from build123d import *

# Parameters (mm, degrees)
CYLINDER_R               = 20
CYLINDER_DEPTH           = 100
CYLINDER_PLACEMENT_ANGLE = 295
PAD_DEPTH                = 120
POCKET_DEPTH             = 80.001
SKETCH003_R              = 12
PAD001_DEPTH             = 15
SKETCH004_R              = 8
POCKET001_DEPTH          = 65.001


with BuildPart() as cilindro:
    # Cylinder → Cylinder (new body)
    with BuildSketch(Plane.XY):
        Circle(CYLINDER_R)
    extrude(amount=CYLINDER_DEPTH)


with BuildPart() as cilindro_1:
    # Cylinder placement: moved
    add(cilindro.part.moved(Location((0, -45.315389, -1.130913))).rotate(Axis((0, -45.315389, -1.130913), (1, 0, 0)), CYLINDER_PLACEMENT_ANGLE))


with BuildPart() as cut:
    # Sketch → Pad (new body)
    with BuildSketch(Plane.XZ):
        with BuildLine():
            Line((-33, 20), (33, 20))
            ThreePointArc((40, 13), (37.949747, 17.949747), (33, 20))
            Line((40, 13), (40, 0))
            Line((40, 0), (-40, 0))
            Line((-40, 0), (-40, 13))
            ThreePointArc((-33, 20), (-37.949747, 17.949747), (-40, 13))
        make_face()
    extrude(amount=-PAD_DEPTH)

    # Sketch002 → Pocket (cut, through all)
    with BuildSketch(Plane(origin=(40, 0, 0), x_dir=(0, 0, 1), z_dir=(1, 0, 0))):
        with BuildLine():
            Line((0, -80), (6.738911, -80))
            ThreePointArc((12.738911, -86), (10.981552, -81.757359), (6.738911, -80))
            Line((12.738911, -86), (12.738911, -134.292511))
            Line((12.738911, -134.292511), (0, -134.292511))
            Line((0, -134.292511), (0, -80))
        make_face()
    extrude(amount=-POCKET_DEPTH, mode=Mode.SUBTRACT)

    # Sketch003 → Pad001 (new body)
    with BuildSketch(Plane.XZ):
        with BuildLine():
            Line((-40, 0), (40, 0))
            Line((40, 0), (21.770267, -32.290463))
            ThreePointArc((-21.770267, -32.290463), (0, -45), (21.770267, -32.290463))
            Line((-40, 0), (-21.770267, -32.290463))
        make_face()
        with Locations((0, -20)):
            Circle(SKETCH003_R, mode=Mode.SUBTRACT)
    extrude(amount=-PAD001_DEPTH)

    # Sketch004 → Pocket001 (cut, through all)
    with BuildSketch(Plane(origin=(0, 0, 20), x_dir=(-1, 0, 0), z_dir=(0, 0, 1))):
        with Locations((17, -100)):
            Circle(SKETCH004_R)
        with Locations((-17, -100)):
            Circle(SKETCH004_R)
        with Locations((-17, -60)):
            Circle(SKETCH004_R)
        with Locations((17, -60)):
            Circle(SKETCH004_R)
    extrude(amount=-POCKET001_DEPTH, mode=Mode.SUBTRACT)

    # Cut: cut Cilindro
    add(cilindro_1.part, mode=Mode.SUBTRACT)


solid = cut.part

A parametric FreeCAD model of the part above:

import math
import FreeCAD as App
import Part
import Sketcher

V = App.Vector
Q = App.Units.Quantity

doc = App.newDocument("Part")
params = doc.addObject("Spreadsheet::Sheet", "Params")
for row, (alias, value) in enumerate([
    ("sketch1_diameter", "40 mm"),
    ("pad1_length", "100 mm"),
    ("sketch2_radius", "7.000002 mm"),
    ("sketch2_width", "66 mm"),
    ("sketch2_height", "13 mm"),
    ("pad2_length", "120 mm"),
    ("sketch3_radius", "5.999999 mm"),
    ("sketch4_diameter", "24 mm"),
    ("sketch4_radius", "25 mm"),
    ("sketch4_width", "80 mm"),
    ("pad3_length", "15 mm"),
    ("sketch5_diameter", "16 mm"),
], start=1):
    params.set(f"A{row}", alias)
    params.set(f"B{row}", "=" + value)
    params.setAlias(f"B{row}", alias)

body = doc.addObject("PartDesign::Body", "Body")

# Sketch on XY plane
sketch1 = doc.addObject("Sketcher::SketchObject", "Sketch")
body.addObject(sketch1)
sketch1.AttachmentSupport = (doc.XY_Plane, [""])
sketch1.MapMode = "FlatFace"
sketch1.addGeometry(Part.Circle(V(0, 0, 0), V(0, 0, 1), 20), False)
sketch1.addConstraint(Sketcher.Constraint("Coincident", 0, 3, -1, 1))
sketch1.addConstraint(Sketcher.Constraint("Diameter", 0, Q("40 mm")))
sketch1.setExpression("Constraints[1]", "Params.sketch1_diameter")
pad1 = doc.addObject("PartDesign::Pad", "Pad")
body.addObject(pad1)
pad1.Profile = sketch1
pad1.setExpression("Length", "Params.pad1_length")
body2 = doc.addObject("PartDesign::Body", "Body001")
doc.recompute()

body.Placement = App.Placement(V(0, -45.315389, -1.130913), App.Rotation(V(1, 0, 0), 295))
boolean = doc.addObject("PartDesign::Boolean", "Boolean")
body2.addObject(boolean)
boolean.Type = "Fuse"
boolean.addObjects([body])
body3 = doc.addObject("PartDesign::Body", "Body002")

# Sketch on XZ plane
sketch2 = doc.addObject("Sketcher::SketchObject", "Sketch001")
body3.addObject(sketch2)
sketch2.AttachmentSupport = (doc.getObject("XZ_Plane002"), [""])
sketch2.MapMode = "FlatFace"
sketch2.addGeometry(Part.LineSegment(V(33, 20, 0), V(-33, 20, 0)), False)
sketch2.addGeometry(Part.ArcOfCircle(Part.Circle(V(-33, 13, 0), V(0, 0, 1), 7), math.radians(90), math.radians(180)), False)
sketch2.addGeometry(Part.LineSegment(V(-40, 13, 0), V(-40, 0, 0)), False)
sketch2.addGeometry(Part.LineSegment(V(-40, 0, 0), V(40, 0, 0)), False)
sketch2.addGeometry(Part.LineSegment(V(40, 0, 0), V(40, 13, 0)), False)
sketch2.addGeometry(Part.ArcOfCircle(Part.Circle(V(33, 13, 0), V(0, 0, 1), 7), math.radians(0), math.radians(90)), False)
sketch2.addConstraint(Sketcher.Constraint("Tangent", 0, 2, 1, 1))
sketch2.addConstraint(Sketcher.Constraint("Tangent", 1, 2, 2, 1))
sketch2.addConstraint(Sketcher.Constraint("Coincident", 2, 2, 3, 1))
sketch2.addConstraint(Sketcher.Constraint("Coincident", 3, 2, 4, 1))
sketch2.addConstraint(Sketcher.Constraint("Tangent", 4, 2, 5, 1))
sketch2.addConstraint(Sketcher.Constraint("Tangent", 5, 2, 0, 1))
sketch2.addConstraint(Sketcher.Constraint("Horizontal", 0))
sketch2.addConstraint(Sketcher.Constraint("Vertical", 2))
sketch2.addConstraint(Sketcher.Constraint("Horizontal", 3))
sketch2.addConstraint(Sketcher.Constraint("Vertical", 4))
sketch2.addConstraint(Sketcher.Constraint("Equal", 1, 5))
sketch2.addConstraint(Sketcher.Constraint("Symmetric", 2, 2, 3, 2, -1, 1))
sketch2.addConstraint(Sketcher.Constraint("Radius", 1, Q("7.000002 mm")))
sketch2.addConstraint(Sketcher.Constraint("DistanceX", 0, 2, 0, 1, Q("66 mm")))
sketch2.addConstraint(Sketcher.Constraint("DistanceY", 2, 2, 2, 1, Q("13 mm")))
sketch2.setExpression("Constraints[12]", "Params.sketch2_radius")
sketch2.setExpression("Constraints[13]", "Params.sketch2_width")
sketch2.setExpression("Constraints[14]", "Params.sketch2_height")
pad2 = doc.addObject("PartDesign::Pad", "Pad001")
body3.addObject(pad2)
pad2.Profile = sketch2
pad2.setExpression("Length", "Params.pad2_length")
pad2.Reversed = True

# Sketch on YZ plane
sketch3 = doc.addObject("Sketcher::SketchObject", "Sketch002")
body3.addObject(sketch3)
sketch3.AttachmentSupport = (doc.getObject("YZ_Plane002"), [""])
sketch3.MapMode = "FlatFace"
sketch3.AttachmentOffset = App.Placement(V(0, 0, 40), App.Rotation())
sketch3.addGeometry(Part.LineSegment(V(80, 7, 0), V(80, 0, 0)), False)
sketch3.addGeometry(Part.LineSegment(V(80, 0, 0), V(134, 0, 0)), False)
sketch3.addGeometry(Part.LineSegment(V(134, 0, 0), V(134, 13, 0)), False)
sketch3.addGeometry(Part.LineSegment(V(134, 13, 0), V(86, 13, 0)), False)
sketch3.addGeometry(Part.ArcOfCircle(Part.Circle(V(86, 7, 0), V(0, 0, 1), 6), math.radians(90), math.radians(180)), False)
sketch3.addConstraint(Sketcher.Constraint("Coincident", 0, 2, 1, 1))
sketch3.addConstraint(Sketcher.Constraint("Coincident", 1, 2, 2, 1))
sketch3.addConstraint(Sketcher.Constraint("Coincident", 2, 2, 3, 1))
sketch3.addConstraint(Sketcher.Constraint("Tangent", 3, 2, 4, 1))
sketch3.addConstraint(Sketcher.Constraint("Tangent", 4, 2, 0, 1))
sketch3.addConstraint(Sketcher.Constraint("Vertical", 0))
sketch3.addConstraint(Sketcher.Constraint("Horizontal", 1))
sketch3.addConstraint(Sketcher.Constraint("Vertical", 2))
sketch3.addConstraint(Sketcher.Constraint("Horizontal", 3))
sketch3.addConstraint(Sketcher.Constraint("PointOnObject", 0, 2, -1))
sketch3.addConstraint(Sketcher.Constraint("Radius", 4, Q("5.999999 mm")))
sketch3.addConstraint(Sketcher.Constraint("DistanceX", -1, 1, 4, 3, Q("85.999999 mm")))
sketch3.addConstraint(Sketcher.Constraint("DistanceX", 1, 1, 1, 2, Q("54.292511 mm")))
sketch3.addConstraint(Sketcher.Constraint("DistanceY", 0, 2, 0, 1, Q("6.738911 mm")))
sketch3.setExpression("Constraints[10]", "Params.sketch3_radius")
pocket1 = doc.addObject("PartDesign::Pocket", "Pocket")
body3.addObject(pocket1)
pocket1.Profile = sketch3
pocket1.Type = "ThroughAll"

# Sketch on XZ plane
sketch4 = doc.addObject("Sketcher::SketchObject", "Sketch003")
body3.addObject(sketch4)
sketch4.AttachmentSupport = (doc.getObject("XZ_Plane002"), [""])
sketch4.MapMode = "FlatFace"
sketch4.addGeometry(Part.LineSegment(V(40, 0, 0), V(-40, 0, 0)), False)
sketch4.addGeometry(Part.LineSegment(V(-40, 0, 0), V(-21.770267, -32.290463, 0)), False)
sketch4.addGeometry(Part.ArcOfCircle(Part.Circle(V(0, -20, 0), V(0, 0, 1), 25), math.radians(-150.552982), math.radians(-29.447018)), False)
sketch4.addGeometry(Part.LineSegment(V(21.770267, -32.290463, 0), V(40, 0, 0)), False)
sketch4.addGeometry(Part.Circle(V(0, -20, 0), V(0, 0, 1), 12), False)
sketch4.addConstraint(Sketcher.Constraint("Coincident", 0, 2, 1, 1))
sketch4.addConstraint(Sketcher.Constraint("Coincident", 1, 2, 2, 1))
sketch4.addConstraint(Sketcher.Constraint("Coincident", 2, 2, 3, 1))
sketch4.addConstraint(Sketcher.Constraint("Coincident", 3, 2, 0, 1))
sketch4.addConstraint(Sketcher.Constraint("Horizontal", 0))
sketch4.addConstraint(Sketcher.Constraint("Coincident", 4, 3, 2, 3))
sketch4.addConstraint(Sketcher.Constraint("PointOnObject", 2, 3, -2))
sketch4.addConstraint(Sketcher.Constraint("PointOnObject", 0, 2, -1))
sketch4.addConstraint(Sketcher.Constraint("Diameter", 4, Q("24 mm")))
sketch4.addConstraint(Sketcher.Constraint("Radius", 2, Q("25 mm")))
sketch4.addConstraint(Sketcher.Constraint("DistanceX", 0, 2, 0, 1, Q("80 mm")))
sketch4.addConstraint(Sketcher.Constraint("DistanceY", 2, 3, -1, 1, Q("20 mm")))
sketch4.addConstraint(Sketcher.Constraint("DistanceX", 0, 2, -1, 1, Q("40 mm")))
sketch4.addConstraint(Sketcher.Constraint("Distance", 1, Q("37.080954 mm")))
sketch4.addConstraint(Sketcher.Constraint("Distance", 3, Q("37.080954 mm")))
sketch4.setExpression("Constraints[8]", "Params.sketch4_diameter")
sketch4.setExpression("Constraints[9]", "Params.sketch4_radius")
sketch4.setExpression("Constraints[10]", "Params.sketch4_width")
pad3 = doc.addObject("PartDesign::Pad", "Pad002")
body3.addObject(pad3)
pad3.Profile = sketch4
pad3.setExpression("Length", "Params.pad3_length")
pad3.Reversed = True

# Sketch on XY plane
sketch5 = doc.addObject("Sketcher::SketchObject", "Sketch004")
body3.addObject(sketch5)
sketch5.AttachmentSupport = (doc.getObject("XY_Plane002"), [""])
sketch5.MapMode = "FlatFace"
sketch5.AttachmentOffset = App.Placement(V(0, 0, 20), App.Rotation())
sketch5.addGeometry(Part.Circle(V(-17, 100, 0), V(0, 0, 1), 8), False)
sketch5.addGeometry(Part.Circle(V(17, 100, 0), V(0, 0, 1), 8), False)
sketch5.addGeometry(Part.Circle(V(17, 60, 0), V(0, 0, 1), 8), False)
sketch5.addGeometry(Part.Circle(V(-17, 60, 0), V(0, 0, 1), 8), False)
sketch5.addConstraint(Sketcher.Constraint("Equal", 0, 1))
sketch5.addConstraint(Sketcher.Constraint("Equal", 1, 2))
sketch5.addConstraint(Sketcher.Constraint("Equal", 2, 3))
sketch5.addConstraint(Sketcher.Constraint("Symmetric", 0, 3, 1, 3, -2))
sketch5.addConstraint(Sketcher.Constraint("Symmetric", 2, 3, 3, 3, -2))
sketch5.addConstraint(Sketcher.Constraint("Vertical", 1, 3, 2, 3))
sketch5.addConstraint(Sketcher.Constraint("Diameter", 0, Q("16 mm")))
sketch5.addConstraint(Sketcher.Constraint("DistanceX", 0, 3, -1, 1, Q("17 mm")))
sketch5.addConstraint(Sketcher.Constraint("DistanceY", -1, 1, 0, 3, Q("100 mm")))
sketch5.addConstraint(Sketcher.Constraint("DistanceY", -1, 1, 2, 3, Q("60 mm")))
sketch5.setExpression("Constraints[6]", "Params.sketch5_diameter")
pocket2 = doc.addObject("PartDesign::Pocket", "Pocket001")
body3.addObject(pocket2)
pocket2.Profile = sketch5
pocket2.Type = "ThroughAll"
doc.recompute()

boolean2 = doc.addObject("PartDesign::Boolean", "Boolean001")
body3.addObject(boolean2)
boolean2.Type = "Cut"
boolean2.addObjects([body2])

doc.recompute()
